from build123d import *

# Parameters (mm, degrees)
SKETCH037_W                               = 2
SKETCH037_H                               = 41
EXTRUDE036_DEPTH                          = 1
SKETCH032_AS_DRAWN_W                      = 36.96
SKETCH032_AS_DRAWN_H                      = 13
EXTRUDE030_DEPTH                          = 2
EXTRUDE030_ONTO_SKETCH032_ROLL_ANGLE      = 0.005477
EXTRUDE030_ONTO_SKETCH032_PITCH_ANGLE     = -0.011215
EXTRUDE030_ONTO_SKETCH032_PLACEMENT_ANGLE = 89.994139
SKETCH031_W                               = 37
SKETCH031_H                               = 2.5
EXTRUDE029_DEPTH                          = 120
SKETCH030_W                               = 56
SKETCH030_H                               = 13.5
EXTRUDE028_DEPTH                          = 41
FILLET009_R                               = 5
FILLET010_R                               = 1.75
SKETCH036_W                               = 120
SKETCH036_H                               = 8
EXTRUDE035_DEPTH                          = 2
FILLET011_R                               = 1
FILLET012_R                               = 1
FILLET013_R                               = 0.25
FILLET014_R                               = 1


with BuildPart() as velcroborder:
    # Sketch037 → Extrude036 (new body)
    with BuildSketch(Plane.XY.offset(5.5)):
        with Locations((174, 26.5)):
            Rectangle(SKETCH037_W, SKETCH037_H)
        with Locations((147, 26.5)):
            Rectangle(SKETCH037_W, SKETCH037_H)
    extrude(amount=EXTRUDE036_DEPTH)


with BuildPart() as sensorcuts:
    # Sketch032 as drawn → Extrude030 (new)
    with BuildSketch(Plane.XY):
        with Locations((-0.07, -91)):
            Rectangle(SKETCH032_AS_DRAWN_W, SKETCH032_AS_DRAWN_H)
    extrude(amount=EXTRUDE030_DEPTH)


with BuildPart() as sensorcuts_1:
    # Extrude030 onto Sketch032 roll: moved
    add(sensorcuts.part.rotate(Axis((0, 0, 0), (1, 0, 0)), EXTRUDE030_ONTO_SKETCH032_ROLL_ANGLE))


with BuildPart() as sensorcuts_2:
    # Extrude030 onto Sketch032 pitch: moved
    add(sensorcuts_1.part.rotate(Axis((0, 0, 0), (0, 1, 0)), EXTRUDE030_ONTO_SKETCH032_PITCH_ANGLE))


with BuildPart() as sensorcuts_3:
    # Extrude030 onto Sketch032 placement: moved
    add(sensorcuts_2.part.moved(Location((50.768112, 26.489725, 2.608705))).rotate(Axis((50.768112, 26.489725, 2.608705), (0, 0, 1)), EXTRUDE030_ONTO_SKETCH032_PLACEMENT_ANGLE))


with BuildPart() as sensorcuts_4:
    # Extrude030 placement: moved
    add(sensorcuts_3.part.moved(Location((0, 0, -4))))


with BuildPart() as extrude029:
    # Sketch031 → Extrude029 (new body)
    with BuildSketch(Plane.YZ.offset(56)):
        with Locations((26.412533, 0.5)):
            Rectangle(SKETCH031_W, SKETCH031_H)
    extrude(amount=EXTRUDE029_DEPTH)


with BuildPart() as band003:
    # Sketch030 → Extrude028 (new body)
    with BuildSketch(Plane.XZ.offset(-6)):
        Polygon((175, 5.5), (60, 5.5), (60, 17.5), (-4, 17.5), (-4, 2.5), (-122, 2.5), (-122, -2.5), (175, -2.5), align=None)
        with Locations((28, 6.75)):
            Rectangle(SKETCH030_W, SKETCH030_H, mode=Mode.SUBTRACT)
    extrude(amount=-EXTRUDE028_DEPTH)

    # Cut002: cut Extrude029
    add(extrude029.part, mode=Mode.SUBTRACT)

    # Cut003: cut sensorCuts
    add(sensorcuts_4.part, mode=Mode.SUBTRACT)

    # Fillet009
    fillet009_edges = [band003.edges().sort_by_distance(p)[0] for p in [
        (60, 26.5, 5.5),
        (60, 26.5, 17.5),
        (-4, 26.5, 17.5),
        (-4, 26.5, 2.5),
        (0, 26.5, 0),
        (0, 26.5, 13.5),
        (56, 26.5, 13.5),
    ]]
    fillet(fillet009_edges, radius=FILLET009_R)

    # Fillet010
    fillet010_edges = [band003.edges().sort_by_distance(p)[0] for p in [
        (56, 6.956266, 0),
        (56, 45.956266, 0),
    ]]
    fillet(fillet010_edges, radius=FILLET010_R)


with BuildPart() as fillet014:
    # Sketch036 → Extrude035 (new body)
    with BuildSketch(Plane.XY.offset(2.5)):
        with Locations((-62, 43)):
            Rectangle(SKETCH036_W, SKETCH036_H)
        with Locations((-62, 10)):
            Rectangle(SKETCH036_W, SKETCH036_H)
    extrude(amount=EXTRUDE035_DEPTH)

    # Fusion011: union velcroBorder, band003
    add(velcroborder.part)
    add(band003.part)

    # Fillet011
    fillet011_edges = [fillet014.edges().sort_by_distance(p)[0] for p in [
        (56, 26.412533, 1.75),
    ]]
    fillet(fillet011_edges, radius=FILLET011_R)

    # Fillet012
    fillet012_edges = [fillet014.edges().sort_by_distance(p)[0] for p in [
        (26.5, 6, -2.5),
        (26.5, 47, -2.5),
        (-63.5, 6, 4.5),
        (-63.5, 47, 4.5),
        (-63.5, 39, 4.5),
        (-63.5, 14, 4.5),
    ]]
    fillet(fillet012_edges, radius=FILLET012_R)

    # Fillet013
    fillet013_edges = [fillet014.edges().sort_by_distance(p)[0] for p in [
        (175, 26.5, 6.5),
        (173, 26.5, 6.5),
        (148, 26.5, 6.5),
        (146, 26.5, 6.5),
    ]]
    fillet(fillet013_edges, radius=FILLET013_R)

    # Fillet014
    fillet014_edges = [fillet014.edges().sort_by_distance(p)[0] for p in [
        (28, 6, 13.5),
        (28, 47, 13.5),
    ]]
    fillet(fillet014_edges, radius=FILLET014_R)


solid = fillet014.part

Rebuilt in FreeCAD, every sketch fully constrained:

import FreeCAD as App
import Part
import Sketcher


def edges_at(feature, points):
    """Names of the edges that pass closest to the given points."""
    edges = feature.Shape.Edges
    near = lambda p: min(range(len(edges)), key=lambda i: edges[i].distToShape(Part.Vertex(*p))[0])
    return sorted({f"Edge{near(p) + 1}" for p in points})

doc = App.newDocument("Part")
params = doc.addObject("Spreadsheet::Sheet", "Params")
for row, (alias, value) in enumerate([
    ("sketch1_width", "2 mm"),
    ("sketch1_height", "41 mm"),
    ("pad1_length", "1 mm"),
    ("sketch2_height", "13 mm"),
    ("sketch2_width", "36.96 mm"),
    ("pad2_length", "2 mm"),
    ("sketch3_width", "37 mm"),
    ("sketch3_height", "2.5 mm"),
    ("pad3_length", "120 mm"),
    ("sketch4_width", "115 mm"),
    ("sketch4_width2", "64 mm"),
    ("sketch4_width3", "118 mm"),
    ("sketch4_width4", "56 mm"),
    ("sketch4_height", "12 mm"),
    ("pad4_length", "41 mm"),
    ("fillet_radius", "5 mm"),
    ("fillet2_radius", "1.75 mm"),
    ("sketch5_width", "120 mm"),
    ("sketch5_height", "8 mm"),
    ("pad5_length", "2 mm"),
    ("fillet3_radius", "1 mm"),
    ("fillet4_radius", "1 mm"),
    ("fillet5_radius", "0.25 mm"),
    ("fillet6_radius", "1 mm"),
], start=1):
    params.set(f"A{row}", alias)
    params.set(f"B{row}", "=" + value)
    params.setAlias(f"B{row}", alias)

body = doc.addObject("PartDesign::Body", "Body")
body.AllowCompound = True

sketch1 = body.newObject("Sketcher::SketchObject", "Sketch")
sketch1.AttachmentSupport = (doc.getObject("XY_Plane"), [""])
sketch1.MapMode = "FlatFace"
sketch1.AttachmentOffset = App.Placement(App.Vector(0, 0, 5.5), App.Rotation())
sketch1.addGeometry([
    Part.LineSegment(App.Vector(173, 47, 0), App.Vector(173, 6, 0)),
    Part.LineSegment(App.Vector(173, 6, 0), App.Vector(175, 6, 0)),
    Part.LineSegment(App.Vector(175, 6, 0), App.Vector(175, 47, 0)),
    Part.LineSegment(App.Vector(175, 47, 0), App.Vector(173, 47, 0)),
    Part.LineSegment(App.Vector(146, 47, 0), App.Vector(146, 6, 0)),
    Part.LineSegment(App.Vector(146, 6, 0), App.Vector(148, 6, 0)),
    Part.LineSegment(App.Vector(148, 6, 0), App.Vector(148, 47, 0)),
    Part.LineSegment(App.Vector(148, 47, 0), App.Vector(146, 47, 0)),
], False)
sketch1.addConstraint([
    Sketcher.Constraint("Coincident", 0, 2, 1, 1),
    Sketcher.Constraint("Coincident", 1, 2, 2, 1),
    Sketcher.Constraint("Coincident", 2, 2, 3, 1),
    Sketcher.Constraint("Coincident", 3, 2, 0, 1),
    Sketcher.Constraint("Coincident", 4, 2, 5, 1),
    Sketcher.Constraint("Coincident", 5, 2, 6, 1),
    Sketcher.Constraint("Coincident", 6, 2, 7, 1),
    Sketcher.Constraint("Coincident", 7, 2, 4, 1),
    Sketcher.Constraint("Vertical", 0),
    Sketcher.Constraint("Horizontal", 1),
    Sketcher.Constraint("Vertical", 2),
    Sketcher.Constraint("Horizontal", 3),
    Sketcher.Constraint("Vertical", 4),
    Sketcher.Constraint("Horizontal", 5),
    Sketcher.Constraint("Vertical", 6),
    Sketcher.Constraint("Horizontal", 7),
    Sketcher.Constraint("Horizontal", 1, 2, 4, 2),
    Sketcher.Constraint("Horizontal", 3, 2, 6, 2),
    Sketcher.Constraint("Equal", 3, 5),
    Sketcher.Constraint("DistanceX", 1, 1, 1, 2, 2.0),
    Sketcher.Constraint("DistanceY", 0, 2, 0, 1, 41.0),
    Sketcher.Constraint("DistanceX", -1, 1, 0, 2, 173.0),
    Sketcher.Constraint("DistanceY", -1, 1, 0, 2, 6.0),
    Sketcher.Constraint("DistanceX", -1, 1, 4, 2, 146.0),
])
sketch1.setExpression("Constraints[19]", "Params.sketch1_width")
sketch1.setExpression("Constraints[20]", "Params.sketch1_height")
pad1 = body.newObject("PartDesign::Pad", "Pad")
pad1.Profile = sketch1
pad1.setExpression("Length", "Params.pad1_length")
body2 = doc.addObject("PartDesign::Body", "Body001")

sketch2 = body2.newObject("Sketcher::SketchObject", "Sketch001")
sketch2.AttachmentSupport = (doc.getObject("XY_Plane001"), [""])
sketch2.MapMode = "FlatFace"
sketch2.addGeometry([
    Part.LineSegment(App.Vector(-19, -84, 0), App.Vector(-19, -98, 0)),
    Part.LineSegment(App.Vector(-19, -98, 0), App.Vector(18, -98, 0)),
    Part.LineSegment(App.Vector(18, -98, 0), App.Vector(18, -84, 0)),
    Part.LineSegment(App.Vector(18, -84, 0), App.Vector(-19, -84, 0)),
], False)
sketch2.addConstraint([
    Sketcher.Constraint("Coincident", 0, 2, 1, 1),
    Sketcher.Constraint("Coincident", 1, 2, 2, 1),
    Sketcher.Constraint("Coincident", 2, 2, 3, 1),
    Sketcher.Constraint("Coincident", 3, 2, 0, 1),
    Sketcher.Constraint("Vertical", 0),
    Sketcher.Constraint("Horizontal", 1),
    Sketcher.Constraint("Vertical", 2),
    Sketcher.Constraint("Horizontal", 3),
    Sketcher.Constraint("DistanceY", 0, 2, 0, 1, 13.0),
    Sketcher.Constraint("DistanceX", 1, 1, 1, 2, 36.96),
    Sketcher.Constraint("DistanceY", 0, 2, -1, 1, 97.5),
    Sketcher.Constraint("DistanceX", 0, 2, -1, 1, 18.55),
])
sketch2.setExpression("Constraints[8]", "Params.sketch2_height")
sketch2.setExpression("Constraints[9]", "Params.sketch2_width")
pad2 = body2.newObject("PartDesign::Pad", "Pad001")
pad2.Profile = sketch2
pad2.setExpression("Length", "Params.pad2_length")
body3 = doc.addObject("PartDesign::Body", "Body002")
doc.recompute()

body2.Placement = App.Placement(App.Vector(0, 0, 0), App.Rotation(App.Vector(1, 0, 0), 0.005477))
boolean = body3.newObject("PartDesign::Boolean", "Boolean")
boolean.Type = "Fuse"
boolean.addObjects([body2])
body4 = doc.addObject("PartDesign::Body", "Body003")
doc.recompute()

body3.Placement = App.Placement(App.Vector(0, 0, 0), App.Rotation(App.Vector(0, 1, 0), 359.988785))
boolean2 = body4.newObject("PartDesign::Boolean", "Boolean001")
boolean2.Type = "Fuse"
boolean2.addObjects([body3])
body5 = doc.addObject("PartDesign::Body", "Body004")
doc.recompute()

body4.Placement = App.Placement(App.Vector(50.768112, 26.489725, 2.608705), App.Rotation(App.Vector(0, 0, 1), 89.994139))
boolean3 = body5.newObject("PartDesign::Boolean", "Boolean002")
boolean3.Type = "Fuse"
boolean3.addObjects([body4])
body6 = doc.addObject("PartDesign::Body", "Body005")
doc.recompute()

body5.Placement = App.Placement(App.Vector(0, 0, -4), App.Rotation(App.Vector(0, 0, 1), 0))
boolean4 = body6.newObject("PartDesign::Boolean", "Boolean003")
boolean4.Type = "Fuse"
boolean4.addObjects([body5])
body7 = doc.addObject("PartDesign::Body", "Body006")

sketch3 = body7.newObject("Sketcher::SketchObject", "Sketch002")
sketch3.AttachmentSupport = (doc.getObject("YZ_Plane006"), [""])
sketch3.MapMode = "FlatFace"
sketch3.AttachmentOffset = App.Placement(App.Vector(0, 0, 56), App.Rotation())
sketch3.addGeometry([
    Part.LineSegment(App.Vector(7.9, 1.8, 0), App.Vector(7.9, -0.8, 0)),
    Part.LineSegment(App.Vector(7.9, -0.8, 0), App.Vector(44.9, -0.8, 0)),
    Part.LineSegment(App.Vector(44.9, -0.8, 0), App.Vector(44.9, 1.8, 0)),
    Part.LineSegment(App.Vector(44.9, 1.8, 0), App.Vector(7.9, 1.8, 0)),
], False)
sketch3.addConstraint([
    Sketcher.Constraint("Coincident", 0, 2, 1, 1),
    Sketcher.Constraint("Coincident", 1, 2, 2, 1),
    Sketcher.Constraint("Coincident", 2, 2, 3, 1),
    Sketcher.Constraint("Coincident", 3, 2, 0, 1),
    Sketcher.Constraint("Vertical", 0),
    Sketcher.Constraint("Horizontal", 1),
    Sketcher.Constraint("Vertical", 2),
    Sketcher.Constraint("Horizontal", 3),
    Sketcher.Constraint("DistanceX", 1, 1, 1, 2, 37.0),
    Sketcher.Constraint("DistanceY", 0, 2, 0, 1, 2.5),
    Sketcher.Constraint("DistanceY", 0, 2, -1, 1, 0.75),
    Sketcher.Constraint("DistanceX", -1, 1, 0, 2, 7.912533),
])
sketch3.setExpression("Constraints[8]", "Params.sketch3_width")
sketch3.setExpression("Constraints[9]", "Params.sketch3_height")
pad3 = body7.newObject("PartDesign::Pad", "Pad002")
pad3.Profile = sketch3
pad3.setExpression("Length", "Params.pad3_length")
body8 = doc.addObject("PartDesign::Body", "Body007")

sketch4 = body8.newObject("Sketcher::SketchObject", "Sketch003")
sketch4.AttachmentSupport = (doc.getObject("XZ_Plane007"), [""])
sketch4.MapMode = "FlatFace"
sketch4.AttachmentOffset = App.Placement(App.Vector(0, 0, -6), App.Rotation())
sketch4.addGeometry([
    Part.LineSegment(App.Vector(175, 6, 0), App.Vector(60, 6, 0)),
    Part.LineSegment(App.Vector(60, 6, 0), App.Vector(60, 18, 0)),
    Part.LineSegment(App.Vector(60, 18, 0), App.Vector(-4, 18, 0)),
    Part.LineSegment(App.Vector(-4, 18, 0), App.Vector(-4, 2, 0)),
    Part.LineSegment(App.Vector(-4, 2, 0), App.Vector(-122, 2, 0)),
    Part.LineSegment(App.Vector(-122, 2, 0), App.Vector(-122, -2, 0)),
    Part.LineSegment(App.Vector(-122, -2, 0), App.Vector(175, -2, 0)),
    Part.LineSegment(App.Vector(175, -2, 0), App.Vector(175, 6, 0)),
    Part.LineSegment(App.Vector(56, 0, 0), App.Vector(0, 0, 0)),
    Part.LineSegment(App.Vector(0, 0, 0), App.Vector(0, 14, 0)),
    Part.LineSegment(App.Vector(0, 14, 0), App.Vector(56, 14, 0)),
    Part.LineSegment(App.Vector(56, 14, 0), App.Vector(56, 0, 0)),
], False)
sketch4.addConstraint([
    Sketcher.Constraint("Coincident", 0, 2, 1, 1),
    Sketcher.Constraint("Coincident", 1, 2, 2, 1),
    Sketcher.Constraint("Coincident", 2, 2, 3, 1),
    Sketcher.Constraint("Coincident", 3, 2, 4, 1),
    Sketcher.Constraint("Coincident", 4, 2, 5, 1),
    Sketcher.Constraint("Coincident", 5, 2, 6, 1),
    Sketcher.Constraint("Coincident", 6, 2, 7, 1),
    Sketcher.Constraint("Coincident", 7, 2, 0, 1),
    Sketcher.Constraint("Coincident", 8, 2, 9, 1),
    Sketcher.Constraint("Coincident", 9, 2, 10, 1),
    Sketcher.Constraint("Coincident", 10, 2, 11, 1),
    Sketcher.Constraint("Coincident", 11, 2, 8, 1),
    Sketcher.Constraint("Horizontal", 0),
    Sketcher.Constraint("Vertical", 1),
    Sketcher.Constraint("Horizontal", 2),
    Sketcher.Constraint("Vertical", 3),
    Sketcher.Constraint("Horizontal", 4),
    Sketcher.Constraint("Vertical", 5),
    Sketcher.Constraint("Horizontal", 6),
    Sketcher.Constraint("Vertical", 7),
    Sketcher.Constraint("Horizontal", 8),
    Sketcher.Constraint("Vertical", 9),
    Sketcher.Constraint("Horizontal", 10),
    Sketcher.Constraint("Vertical", 11),
    Sketcher.Constraint("Coincident", 8, 2, -1, 1),
    Sketcher.Constraint("DistanceX", 0, 2, 0, 1, 115.0),
    Sketcher.Constraint("DistanceX", 2, 2, 2, 1, 64.0),
    Sketcher.Constraint("DistanceX", 4, 2, 4, 1, 118.0),
    Sketcher.Constraint("DistanceX", 8, 2, 8, 1, 56.0),
    Sketcher.Constraint("DistanceY", 1, 1, 1, 2, 12.0),
    Sketcher.Constraint("DistanceY", 3, 2, 3, 1, 15.0),
    Sketcher.Constraint("DistanceY", 5, 2, 5, 1, 5.0),
    Sketcher.Constraint("DistanceY", 9, 1, 9, 2, 13.5),
    Sketcher.Constraint("DistanceX", -1, 1, 0, 2, 60.0),
    Sketcher.Constraint("DistanceY", 9, 2, 2, 2, 4.0),
])
sketch4.setExpression("Constraints[25]", "Params.sketch4_width")
sketch4.setExpression("Constraints[26]", "Params.sketch4_width2")
sketch4.setExpression("Constraints[27]", "Params.sketch4_width3")
sketch4.setExpression("Constraints[28]", "Params.sketch4_width4")
sketch4.setExpression("Constraints[29]", "Params.sketch4_height")
pad4 = body8.newObject("PartDesign::Pad", "Pad003")
pad4.Profile = sketch4
pad4.setExpression("Length", "Params.pad4_length")
pad4.Reversed = True
doc.recompute()

boolean5 = body8.newObject("PartDesign::Boolean", "Boolean004")
boolean5.Type = "Cut"
boolean5.addObjects([body7])
doc.recompute()

boolean6 = body8.newObject("PartDesign::Boolean", "Boolean005")
boolean6.Type = "Cut"
boolean6.addObjects([body6])
doc.recompute()

fillet = body8.newObject("PartDesign::Fillet", "Fillet")
fillet.Base = (boolean6, edges_at(boolean6, [
    (60, 26.5, 5.5),
    (60, 26.5, 17.5),
    (-4, 26.5, 17.5),
    (-4, 26.5, 2.5),
    (0, 26.5, 0),
    (0, 26.5, 13.5),
    (56, 26.5, 13.5),
]))
fillet.setExpression("Radius", "Params.fillet_radius")
doc.recompute()

fillet2 = body8.newObject("PartDesign::Fillet", "Fillet001")
fillet2.Base = (fillet, edges_at(fillet, [(56, 6.956, 0), (56, 45.956, 0)]))
fillet2.setExpression("Radius", "Params.fillet2_radius")
body9 = doc.addObject("PartDesign::Body", "Body008")
body9.AllowCompound = True

sketch5 = body9.newObject("Sketcher::SketchObject", "Sketch004")
sketch5.AttachmentSupport = (doc.getObject("XY_Plane008"), [""])
sketch5.MapMode = "FlatFace"
sketch5.AttachmentOffset = App.Placement(App.Vector(0, 0, 2.5), App.Rotation())
sketch5.addGeometry([
    Part.LineSegment(App.Vector(-122, 47, 0), App.Vector(-122, 39, 0)),
    Part.LineSegment(App.Vector(-122, 39, 0), App.Vector(-2, 39, 0)),
    Part.LineSegment(App.Vector(-2, 39, 0), App.Vector(-2, 47, 0)),
    Part.LineSegment(App.Vector(-2, 47, 0), App.Vector(-122, 47, 0)),
    Part.LineSegment(App.Vector(-122, 14, 0), App.Vector(-122, 6, 0)),
    Part.LineSegment(App.Vector(-122, 6, 0), App.Vector(-2, 6, 0)),
    Part.LineSegment(App.Vector(-2, 6, 0), App.Vector(-2, 14, 0)),
    Part.LineSegment(App.Vector(-2, 14, 0), App.Vector(-122, 14, 0)),
], False)
sketch5.addConstraint([
    Sketcher.Constraint("Coincident", 0, 2, 1, 1),
    Sketcher.Constraint("Coincident", 1, 2, 2, 1),
    Sketcher.Constraint("Coincident", 2, 2, 3, 1),
    Sketcher.Constraint("Coincident", 3, 2, 0, 1),
    Sketcher.Constraint("Coincident", 4, 2, 5, 1),
    Sketcher.Constraint("Coincident", 5, 2, 6, 1),
    Sketcher.Constraint("Coincident", 6, 2, 7, 1),
    Sketcher.Constraint("Coincident", 7, 2, 4, 1),
    Sketcher.Constraint("Vertical", 0),
    Sketcher.Constraint("Horizontal", 1),
    Sketcher.Constraint("Vertical", 2),
    Sketcher.Constraint("Horizontal", 3),
    Sketcher.Constraint("Vertical", 4),
    Sketcher.Constraint("Horizontal", 5),
    Sketcher.Constraint("Vertical", 6),
    Sketcher.Constraint("Horizontal", 7),
    Sketcher.Constraint("Vertical", 3, 2, 4, 2),
    Sketcher.Constraint("Vertical", 2, 2, 5, 2),
    Sketcher.Constraint("Equal", 2, 4),
    Sketcher.Constraint("DistanceX", 1, 1, 1, 2, 120.0),
    Sketcher.Constraint("DistanceY", 0, 2, 0, 1, 8.0),
    Sketcher.Constraint("DistanceX", 0, 2, -1, 1, 122.0),
    Sketcher.Constraint("DistanceY", -1, 1, 0, 2, 39.0),
    Sketcher.Constraint("DistanceY", -1, 1, 4, 2, 6.0),
])
sketch5.setExpression("Constraints[19]", "Params.sketch5_width")
sketch5.setExpression("Constraints[20]", "Params.sketch5_height")
pad5 = body9.newObject("PartDesign::Pad", "Pad004")
pad5.Profile = sketch5
pad5.setExpression("Length", "Params.pad5_length")
doc.recompute()

boolean7 = body9.newObject("PartDesign::Boolean", "Boolean006")
boolean7.Type = "Fuse"
boolean7.addObjects([body])
doc.recompute()

boolean8 = body9.newObject("PartDesign::Boolean", "Boolean007")
boolean8.Type = "Fuse"
boolean8.addObjects([body8])
doc.recompute()

fillet3 = body9.newObject("PartDesign::Fillet", "Fillet002")
fillet3.Base = (boolean8, edges_at(boolean8, [(56, 26.413, 1.75)]))
fillet3.setExpression("Radius", "Params.fillet3_radius")
doc.recompute()

fillet4 = body9.newObject("PartDesign::Fillet", "Fillet003")
fillet4.Base = (fillet3, edges_at(fillet3, [
    (26.5, 6, -2.5),
    (26.5, 47, -2.5),
    (-63.5, 6, 4.5),
    (-63.5, 47, 4.5),
    (-63.5, 39, 4.5),
    (-63.5, 14, 4.5),
]))
fillet4.setExpression("Radius", "Params.fillet4_radius")
doc.recompute()

fillet5 = body9.newObject("PartDesign::Fillet", "Fillet004")
fillet5.Base = (fillet4, edges_at(fillet4, [
    (175, 26.5, 6.5),
    (173, 26.5, 6.5),
    (148, 26.5, 6.5),
    (146, 26.5, 6.5),
]))
fillet5.setExpression("Radius", "Params.fillet5_radius")
doc.recompute()

fillet6 = body9.newObject("PartDesign::Fillet", "Fillet005")
fillet6.Base = (fillet5, edges_at(fillet5, [(28, 6, 13.5), (28, 47, 13.5)]))
fillet6.setExpression("Radius", "Params.fillet6_radius")

doc.recompute()
